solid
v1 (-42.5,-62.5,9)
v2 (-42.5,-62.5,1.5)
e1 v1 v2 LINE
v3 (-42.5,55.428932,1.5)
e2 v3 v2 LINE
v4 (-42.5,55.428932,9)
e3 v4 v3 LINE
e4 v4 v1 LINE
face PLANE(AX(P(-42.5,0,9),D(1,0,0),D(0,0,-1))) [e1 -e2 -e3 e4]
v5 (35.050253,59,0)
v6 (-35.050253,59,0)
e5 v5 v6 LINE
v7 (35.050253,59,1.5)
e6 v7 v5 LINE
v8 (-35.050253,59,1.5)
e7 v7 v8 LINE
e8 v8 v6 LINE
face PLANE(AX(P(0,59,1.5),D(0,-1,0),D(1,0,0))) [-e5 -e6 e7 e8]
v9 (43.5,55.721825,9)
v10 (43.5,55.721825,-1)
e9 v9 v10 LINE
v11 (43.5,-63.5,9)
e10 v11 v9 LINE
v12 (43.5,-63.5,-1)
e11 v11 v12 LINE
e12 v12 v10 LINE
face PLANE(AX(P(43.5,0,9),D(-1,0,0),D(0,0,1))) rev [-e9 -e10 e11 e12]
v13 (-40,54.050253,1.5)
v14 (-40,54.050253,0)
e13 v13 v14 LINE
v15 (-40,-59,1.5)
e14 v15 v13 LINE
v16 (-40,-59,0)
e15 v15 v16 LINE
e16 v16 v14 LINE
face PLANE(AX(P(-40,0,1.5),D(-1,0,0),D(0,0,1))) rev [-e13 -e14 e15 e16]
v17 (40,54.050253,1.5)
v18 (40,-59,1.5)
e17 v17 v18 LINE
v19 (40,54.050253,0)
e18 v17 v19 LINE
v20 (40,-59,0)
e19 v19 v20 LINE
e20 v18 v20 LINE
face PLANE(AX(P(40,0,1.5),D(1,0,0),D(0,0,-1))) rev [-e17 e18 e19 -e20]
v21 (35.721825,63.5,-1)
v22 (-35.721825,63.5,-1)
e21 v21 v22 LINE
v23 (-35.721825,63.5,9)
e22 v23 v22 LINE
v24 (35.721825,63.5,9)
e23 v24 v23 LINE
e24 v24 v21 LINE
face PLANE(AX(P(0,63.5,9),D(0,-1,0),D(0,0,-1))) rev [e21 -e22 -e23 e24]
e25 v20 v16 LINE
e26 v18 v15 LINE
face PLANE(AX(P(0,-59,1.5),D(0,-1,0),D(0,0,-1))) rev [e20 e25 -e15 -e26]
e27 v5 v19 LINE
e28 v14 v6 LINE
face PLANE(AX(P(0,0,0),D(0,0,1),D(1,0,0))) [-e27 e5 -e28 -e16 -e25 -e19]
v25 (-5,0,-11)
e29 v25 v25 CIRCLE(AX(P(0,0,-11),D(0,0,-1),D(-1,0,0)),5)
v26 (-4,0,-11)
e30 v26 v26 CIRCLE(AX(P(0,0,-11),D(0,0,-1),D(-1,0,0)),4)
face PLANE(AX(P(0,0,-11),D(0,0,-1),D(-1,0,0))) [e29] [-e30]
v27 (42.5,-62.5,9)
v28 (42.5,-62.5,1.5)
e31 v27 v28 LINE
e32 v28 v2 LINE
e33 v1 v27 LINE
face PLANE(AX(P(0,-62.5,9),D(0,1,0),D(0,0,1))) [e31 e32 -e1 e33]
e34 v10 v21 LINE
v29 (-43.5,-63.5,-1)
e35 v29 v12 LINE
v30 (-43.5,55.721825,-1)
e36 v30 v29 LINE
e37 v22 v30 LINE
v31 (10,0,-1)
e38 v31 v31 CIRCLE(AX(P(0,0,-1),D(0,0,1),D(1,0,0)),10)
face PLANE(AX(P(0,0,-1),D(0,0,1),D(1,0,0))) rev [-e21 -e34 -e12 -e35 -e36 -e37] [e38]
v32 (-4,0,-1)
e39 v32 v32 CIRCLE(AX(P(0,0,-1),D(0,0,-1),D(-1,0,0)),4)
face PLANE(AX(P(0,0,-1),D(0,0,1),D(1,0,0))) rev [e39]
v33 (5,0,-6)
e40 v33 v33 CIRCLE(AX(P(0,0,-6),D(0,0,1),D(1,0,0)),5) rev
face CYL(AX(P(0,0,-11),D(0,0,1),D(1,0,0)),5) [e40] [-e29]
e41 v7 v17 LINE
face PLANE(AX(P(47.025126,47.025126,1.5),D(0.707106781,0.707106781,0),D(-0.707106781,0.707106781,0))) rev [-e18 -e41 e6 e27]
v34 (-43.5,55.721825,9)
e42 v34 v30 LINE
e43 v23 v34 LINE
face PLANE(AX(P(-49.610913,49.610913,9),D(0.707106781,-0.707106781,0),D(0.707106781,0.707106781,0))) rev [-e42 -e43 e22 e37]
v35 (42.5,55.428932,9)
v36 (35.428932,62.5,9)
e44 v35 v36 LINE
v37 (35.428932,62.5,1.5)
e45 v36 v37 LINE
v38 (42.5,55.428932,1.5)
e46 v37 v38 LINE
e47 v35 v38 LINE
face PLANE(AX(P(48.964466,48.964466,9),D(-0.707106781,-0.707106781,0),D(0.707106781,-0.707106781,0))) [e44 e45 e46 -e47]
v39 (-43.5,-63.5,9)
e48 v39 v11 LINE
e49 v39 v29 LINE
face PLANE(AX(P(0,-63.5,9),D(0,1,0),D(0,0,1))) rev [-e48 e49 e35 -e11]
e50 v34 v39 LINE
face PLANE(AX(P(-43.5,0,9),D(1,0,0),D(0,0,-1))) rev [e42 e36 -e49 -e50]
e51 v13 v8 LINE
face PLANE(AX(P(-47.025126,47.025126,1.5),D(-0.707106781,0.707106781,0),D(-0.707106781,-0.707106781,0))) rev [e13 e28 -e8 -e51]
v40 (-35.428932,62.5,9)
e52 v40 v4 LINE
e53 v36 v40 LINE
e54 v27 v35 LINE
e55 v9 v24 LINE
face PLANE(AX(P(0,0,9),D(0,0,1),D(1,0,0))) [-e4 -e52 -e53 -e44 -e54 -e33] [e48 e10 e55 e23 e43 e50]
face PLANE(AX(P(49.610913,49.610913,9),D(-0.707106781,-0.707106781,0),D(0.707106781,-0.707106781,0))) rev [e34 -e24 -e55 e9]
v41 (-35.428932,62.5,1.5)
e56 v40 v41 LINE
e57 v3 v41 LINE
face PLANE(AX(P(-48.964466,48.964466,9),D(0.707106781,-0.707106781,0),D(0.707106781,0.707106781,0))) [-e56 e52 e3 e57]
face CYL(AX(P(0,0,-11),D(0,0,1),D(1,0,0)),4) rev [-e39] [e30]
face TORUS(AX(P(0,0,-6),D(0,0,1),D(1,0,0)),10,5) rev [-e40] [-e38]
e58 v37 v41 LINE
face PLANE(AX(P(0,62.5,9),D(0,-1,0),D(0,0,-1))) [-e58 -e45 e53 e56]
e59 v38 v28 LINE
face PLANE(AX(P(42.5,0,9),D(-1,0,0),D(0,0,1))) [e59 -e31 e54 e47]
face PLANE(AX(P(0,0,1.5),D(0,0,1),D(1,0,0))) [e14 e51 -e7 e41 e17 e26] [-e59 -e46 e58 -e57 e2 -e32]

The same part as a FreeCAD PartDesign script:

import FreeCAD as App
import Part
import Sketcher
from FreeCAD import Vector
Q = App.Units.Quantity


def edges_at(feature, points):
    """Names of the edges that pass closest to the given points."""
    edges = feature.Shape.Edges
    near = lambda p: min(range(len(edges)), key=lambda i: edges[i].distToShape(Part.Vertex(*p))[0])
    return sorted({f"Edge{near(p) + 1}" for p in points})


def add_polygon(sketch, points):
    """Adds a closed chain of lines whose ends are joined by coincident constraints."""
    first, n = sketch.GeometryCount, len(points)
    for a, b in zip(points, points[1:] + points[:1]):
        sketch.addGeometry(Part.LineSegment(App.Vector(*a, 0), App.Vector(*b, 0)), False)
    for i in range(n):
        sketch.addConstraint(Sketcher.Constraint("Coincident", first + i, 2, first + (i + 1) % n, 1))

doc = App.newDocument("Part")
params = doc.addObject("Spreadsheet::Sheet", "Params")
for row, (alias, value) in enumerate([
    ("sketch1_width", "85 mm"),
    ("sketch1_width2", "80 mm"),
    ("sketch1_length", "10 mm"),
    ("sketch1_length2", "7 mm"),
    ("pad1_length", "1.5 mm"),
    ("sketch2_width", "87 mm"),
    ("sketch2_width2", "85 mm"),
    ("sketch2_length", "11 mm"),
    ("sketch2_length2", "10 mm"),
    ("pad2_length", "9 mm"),
    ("sketch3_width", "87 mm"),
    ("sketch3_length", "11 mm"),
    ("pad3_length", "1 mm"),
    ("sketch4_diameter", "10 mm"),
    ("sketch4_diameter2", "8 mm"),
    ("pad4_length", "10 mm"),
    ("fillet_radius", "5 mm"),
], start=1):
    params.set(f"A{row}", alias)
    params.set(f"B{row}", "=" + value)
    params.setAlias(f"B{row}", alias)

body = doc.addObject("PartDesign::Body", "Body")

sketch1 = body.newObject("Sketcher::SketchObject", "Sketch")
sketch1.AttachmentSupport = (doc.getObject("XY_Plane"), [""])
sketch1.MapMode = "FlatFace"
add_polygon(sketch1, [(-42, -62), (42, -62), (42, 55), (35, 62), (-35, 62), (-42, 55)])
add_polygon(sketch1, [(-40, 54), (-35, 59), (35, 59), (40, 54), (40, -59), (-40, -59)])
sketch1.addConstraint(Sketcher.Constraint("Horizontal", 0))
sketch1.addConstraint(Sketcher.Constraint("Vertical", 1))
sketch1.addConstraint(Sketcher.Constraint("Horizontal", 3))
sketch1.addConstraint(Sketcher.Constraint("Vertical", 5))
sketch1.addConstraint(Sketcher.Constraint("Horizontal", 7))
sketch1.addConstraint(Sketcher.Constraint("Vertical", 9))
sketch1.addConstraint(Sketcher.Constraint("Horizontal", 10))
sketch1.addConstraint(Sketcher.Constraint("Vertical", 11))
sketch1.addConstraint(Sketcher.Constraint("Symmetric", 1, 2, 4, 2, -2))
sketch1.addConstraint(Sketcher.Constraint("Symmetric", 8, 2, 11, 2, -2))
sketch1.addConstraint(Sketcher.Constraint("Perpendicular", 2, 4))
sketch1.addConstraint(Sketcher.Constraint("Parallel", 4, 6))
sketch1.addConstraint(Sketcher.Constraint("Perpendicular", 6, 8))
sketch1.addConstraint(Sketcher.Constraint("Equal", 2, 4))
sketch1.addConstraint(Sketcher.Constraint("DistanceX", 0, 1, 0, 2, Q("85 mm")))
sketch1.addConstraint(Sketcher.Constraint("DistanceX", 10, 2, 10, 1, Q("80 mm")))
sketch1.addConstraint(Sketcher.Constraint("Distance", 2, Q("10 mm")))
sketch1.addConstraint(Sketcher.Constraint("Distance", 6, Q("7 mm")))
sketch1.addConstraint(Sketcher.Constraint("DistanceY", -1, 1, 6, 2, Q("59 mm")))
sketch1.addConstraint(Sketcher.Constraint("DistanceY", 9, 2, -1, 1, Q("59 mm")))
sketch1.addConstraint(Sketcher.Constraint("DistanceY", 0, 2, 2, 2, Q("125 mm")))
sketch1.addConstraint(Sketcher.Constraint("DistanceY", 0, 2, -1, 1, Q("62.5 mm")))
sketch1.setExpression("Constraints[26]", "Params.sketch1_width")
sketch1.setExpression("Constraints[27]", "Params.sketch1_width2")
sketch1.setExpression("Constraints[28]", "Params.sketch1_length")
sketch1.setExpression("Constraints[29]", "Params.sketch1_length2")
pad1 = body.newObject("PartDesign::Pad", "Pad")
pad1.Profile = sketch1
pad1.setExpression("Length", "Params.pad1_length")

sketch2 = body.newObject("Sketcher::SketchObject", "Sketch001")
sketch2.AttachmentSupport = (doc.getObject("XY_Plane"), [""])
sketch2.MapMode = "FlatFace"
add_polygon(sketch2, [(-44, -64), (44, -64), (44, 56), (36, 64), (-36, 64), (-44, 56)])
add_polygon(sketch2, [(42, 55), (42, -62), (-42, -62), (-42, 55), (-35, 62), (35, 62)])
sketch2.addConstraint(Sketcher.Constraint("Horizontal", 0))
sketch2.addConstraint(Sketcher.Constraint("Vertical", 1))
sketch2.addConstraint(Sketcher.Constraint("Horizontal", 3))
sketch2.addConstraint(Sketcher.Constraint("Vertical", 5))
sketch2.addConstraint(Sketcher.Constraint("Vertical", 6))
sketch2.addConstraint(Sketcher.Constraint("Horizontal", 7))
sketch2.addConstraint(Sketcher.Constraint("Vertical", 8))
sketch2.addConstraint(Sketcher.Constraint("Horizontal", 10))
sketch2.addConstraint(Sketcher.Constraint("Symmetric", 1, 2, 4, 2, -2))
sketch2.addConstraint(Sketcher.Constraint("Symmetric", 8, 2, 11, 2, -2))
sketch2.addConstraint(Sketcher.Constraint("Perpendicular", 2, 4))
sketch2.addConstraint(Sketcher.Constraint("Parallel", 4, 9))
sketch2.addConstraint(Sketcher.Constraint("Perpendicular", 9, 11))
sketch2.addConstraint(Sketcher.Constraint("Equal", 2, 4))
sketch2.addConstraint(Sketcher.Constraint("DistanceX", 0, 1, 0, 2, Q("87 mm")))
sketch2.addConstraint(Sketcher.Constraint("DistanceX", 7, 2, 7, 1, Q("85 mm")))
sketch2.addConstraint(Sketcher.Constraint("Distance", 2, Q("11 mm")))
sketch2.addConstraint(Sketcher.Constraint("Distance", 9, Q("10 mm")))
sketch2.addConstraint(Sketcher.Constraint("DistanceY", 0, 2, 2, 2, Q("127 mm")))
sketch2.addConstraint(Sketcher.Constraint("DistanceY", 0, 2, 6, 2, Q("1 mm")))
sketch2.addConstraint(Sketcher.Constraint("DistanceY", 9, 2, 3, 2, Q("1 mm")))
sketch2.addConstraint(Sketcher.Constraint("DistanceY", 0, 2, -1, 1, Q("63.5 mm")))
sketch2.setExpression("Constraints[26]", "Params.sketch2_width")
sketch2.setExpression("Constraints[27]", "Params.sketch2_width2")
sketch2.setExpression("Constraints[28]", "Params.sketch2_length")
sketch2.setExpression("Constraints[29]", "Params.sketch2_length2")
pad2 = body.newObject("PartDesign::Pad", "Pad001")
pad2.Profile = sketch2
pad2.setExpression("Length", "Params.pad2_length")

sketch3 = body.newObject("Sketcher::SketchObject", "Sketch002")
sketch3.AttachmentSupport = (doc.getObject("XY_Plane"), [""])
sketch3.MapMode = "FlatFace"
add_polygon(sketch3, [(-36, 64), (-44, 56), (-44, -64), (44, -64), (44, 56), (36, 64)])
sketch3.addConstraint(Sketcher.Constraint("Vertical", 1))
sketch3.addConstraint(Sketcher.Constraint("Horizontal", 2))
sketch3.addConstraint(Sketcher.Constraint("Vertical", 3))
sketch3.addConstraint(Sketcher.Constraint("Horizontal", 5))
sketch3.addConstraint(Sketcher.Constraint("Symmetric", 0, 2, 3, 2, -2))
sketch3.addConstraint(Sketcher.Constraint("Perpendicular", 0, 4))
sketch3.addConstraint(Sketcher.Constraint("Equal", 0, 4))
sketch3.addConstraint(Sketcher.Constraint("DistanceX", 2, 1, 2, 2, Q("87 mm")))
sketch3.addConstraint(Sketcher.Constraint("Distance", 0, Q("11 mm")))
sketch3.addConstraint(Sketcher.Constraint("DistanceY", 2, 2, 4, 2, Q("127 mm")))
sketch3.addConstraint(Sketcher.Constraint("DistanceY", 1, 2, -1, 1, Q("63.5 mm")))
sketch3.setExpression("Constraints[13]", "Params.sketch3_width")
sketch3.setExpression("Constraints[14]", "Params.sketch3_length")
pad3 = body.newObject("PartDesign::Pad", "Pad002")
pad3.Profile = sketch3
pad3.setExpression("Length", "Params.pad3_length")
pad3.Reversed = True

sketch4 = body.newObject("Sketcher::SketchObject", "Sketch003")
sketch4.AttachmentSupport = (doc.getObject("XY_Plane"), [""])
sketch4.MapMode = "FlatFace"
sketch4.AttachmentOffset = App.Placement(Vector(0, 0, -1), App.Rotation())
sketch4.addGeometry(Part.Circle(Vector(0, 0, 0), Vector(0, 0, 1), 5), False)
sketch4.addGeometry(Part.Circle(Vector(0, 0, 0), Vector(0, 0, 1), 4), False)
sketch4.addConstraint(Sketcher.Constraint("Coincident", 0, 3, -1, 1))
sketch4.addConstraint(Sketcher.Constraint("Coincident", 1, 3, -1, 1))
sketch4.addConstraint(Sketcher.Constraint("Diameter", 0, Q("10 mm")))
sketch4.addConstraint(Sketcher.Constraint("Diameter", 1, Q("8 mm")))
sketch4.setExpression("Constraints[2]", "Params.sketch4_diameter")
sketch4.setExpression("Constraints[3]", "Params.sketch4_diameter2")
pad4 = body.newObject("PartDesign::Pad", "Pad003")
pad4.Profile = sketch4
pad4.setExpression("Length", "Params.pad4_length")
pad4.Reversed = True
doc.recompute()

fillet = body.newObject("PartDesign::Fillet", "Fillet")
fillet.Base = (pad4, edges_at(pad4, [(-5, 0, -1)]))
fillet.setExpression("Radius", "Params.fillet_radius")

doc.recompute()
